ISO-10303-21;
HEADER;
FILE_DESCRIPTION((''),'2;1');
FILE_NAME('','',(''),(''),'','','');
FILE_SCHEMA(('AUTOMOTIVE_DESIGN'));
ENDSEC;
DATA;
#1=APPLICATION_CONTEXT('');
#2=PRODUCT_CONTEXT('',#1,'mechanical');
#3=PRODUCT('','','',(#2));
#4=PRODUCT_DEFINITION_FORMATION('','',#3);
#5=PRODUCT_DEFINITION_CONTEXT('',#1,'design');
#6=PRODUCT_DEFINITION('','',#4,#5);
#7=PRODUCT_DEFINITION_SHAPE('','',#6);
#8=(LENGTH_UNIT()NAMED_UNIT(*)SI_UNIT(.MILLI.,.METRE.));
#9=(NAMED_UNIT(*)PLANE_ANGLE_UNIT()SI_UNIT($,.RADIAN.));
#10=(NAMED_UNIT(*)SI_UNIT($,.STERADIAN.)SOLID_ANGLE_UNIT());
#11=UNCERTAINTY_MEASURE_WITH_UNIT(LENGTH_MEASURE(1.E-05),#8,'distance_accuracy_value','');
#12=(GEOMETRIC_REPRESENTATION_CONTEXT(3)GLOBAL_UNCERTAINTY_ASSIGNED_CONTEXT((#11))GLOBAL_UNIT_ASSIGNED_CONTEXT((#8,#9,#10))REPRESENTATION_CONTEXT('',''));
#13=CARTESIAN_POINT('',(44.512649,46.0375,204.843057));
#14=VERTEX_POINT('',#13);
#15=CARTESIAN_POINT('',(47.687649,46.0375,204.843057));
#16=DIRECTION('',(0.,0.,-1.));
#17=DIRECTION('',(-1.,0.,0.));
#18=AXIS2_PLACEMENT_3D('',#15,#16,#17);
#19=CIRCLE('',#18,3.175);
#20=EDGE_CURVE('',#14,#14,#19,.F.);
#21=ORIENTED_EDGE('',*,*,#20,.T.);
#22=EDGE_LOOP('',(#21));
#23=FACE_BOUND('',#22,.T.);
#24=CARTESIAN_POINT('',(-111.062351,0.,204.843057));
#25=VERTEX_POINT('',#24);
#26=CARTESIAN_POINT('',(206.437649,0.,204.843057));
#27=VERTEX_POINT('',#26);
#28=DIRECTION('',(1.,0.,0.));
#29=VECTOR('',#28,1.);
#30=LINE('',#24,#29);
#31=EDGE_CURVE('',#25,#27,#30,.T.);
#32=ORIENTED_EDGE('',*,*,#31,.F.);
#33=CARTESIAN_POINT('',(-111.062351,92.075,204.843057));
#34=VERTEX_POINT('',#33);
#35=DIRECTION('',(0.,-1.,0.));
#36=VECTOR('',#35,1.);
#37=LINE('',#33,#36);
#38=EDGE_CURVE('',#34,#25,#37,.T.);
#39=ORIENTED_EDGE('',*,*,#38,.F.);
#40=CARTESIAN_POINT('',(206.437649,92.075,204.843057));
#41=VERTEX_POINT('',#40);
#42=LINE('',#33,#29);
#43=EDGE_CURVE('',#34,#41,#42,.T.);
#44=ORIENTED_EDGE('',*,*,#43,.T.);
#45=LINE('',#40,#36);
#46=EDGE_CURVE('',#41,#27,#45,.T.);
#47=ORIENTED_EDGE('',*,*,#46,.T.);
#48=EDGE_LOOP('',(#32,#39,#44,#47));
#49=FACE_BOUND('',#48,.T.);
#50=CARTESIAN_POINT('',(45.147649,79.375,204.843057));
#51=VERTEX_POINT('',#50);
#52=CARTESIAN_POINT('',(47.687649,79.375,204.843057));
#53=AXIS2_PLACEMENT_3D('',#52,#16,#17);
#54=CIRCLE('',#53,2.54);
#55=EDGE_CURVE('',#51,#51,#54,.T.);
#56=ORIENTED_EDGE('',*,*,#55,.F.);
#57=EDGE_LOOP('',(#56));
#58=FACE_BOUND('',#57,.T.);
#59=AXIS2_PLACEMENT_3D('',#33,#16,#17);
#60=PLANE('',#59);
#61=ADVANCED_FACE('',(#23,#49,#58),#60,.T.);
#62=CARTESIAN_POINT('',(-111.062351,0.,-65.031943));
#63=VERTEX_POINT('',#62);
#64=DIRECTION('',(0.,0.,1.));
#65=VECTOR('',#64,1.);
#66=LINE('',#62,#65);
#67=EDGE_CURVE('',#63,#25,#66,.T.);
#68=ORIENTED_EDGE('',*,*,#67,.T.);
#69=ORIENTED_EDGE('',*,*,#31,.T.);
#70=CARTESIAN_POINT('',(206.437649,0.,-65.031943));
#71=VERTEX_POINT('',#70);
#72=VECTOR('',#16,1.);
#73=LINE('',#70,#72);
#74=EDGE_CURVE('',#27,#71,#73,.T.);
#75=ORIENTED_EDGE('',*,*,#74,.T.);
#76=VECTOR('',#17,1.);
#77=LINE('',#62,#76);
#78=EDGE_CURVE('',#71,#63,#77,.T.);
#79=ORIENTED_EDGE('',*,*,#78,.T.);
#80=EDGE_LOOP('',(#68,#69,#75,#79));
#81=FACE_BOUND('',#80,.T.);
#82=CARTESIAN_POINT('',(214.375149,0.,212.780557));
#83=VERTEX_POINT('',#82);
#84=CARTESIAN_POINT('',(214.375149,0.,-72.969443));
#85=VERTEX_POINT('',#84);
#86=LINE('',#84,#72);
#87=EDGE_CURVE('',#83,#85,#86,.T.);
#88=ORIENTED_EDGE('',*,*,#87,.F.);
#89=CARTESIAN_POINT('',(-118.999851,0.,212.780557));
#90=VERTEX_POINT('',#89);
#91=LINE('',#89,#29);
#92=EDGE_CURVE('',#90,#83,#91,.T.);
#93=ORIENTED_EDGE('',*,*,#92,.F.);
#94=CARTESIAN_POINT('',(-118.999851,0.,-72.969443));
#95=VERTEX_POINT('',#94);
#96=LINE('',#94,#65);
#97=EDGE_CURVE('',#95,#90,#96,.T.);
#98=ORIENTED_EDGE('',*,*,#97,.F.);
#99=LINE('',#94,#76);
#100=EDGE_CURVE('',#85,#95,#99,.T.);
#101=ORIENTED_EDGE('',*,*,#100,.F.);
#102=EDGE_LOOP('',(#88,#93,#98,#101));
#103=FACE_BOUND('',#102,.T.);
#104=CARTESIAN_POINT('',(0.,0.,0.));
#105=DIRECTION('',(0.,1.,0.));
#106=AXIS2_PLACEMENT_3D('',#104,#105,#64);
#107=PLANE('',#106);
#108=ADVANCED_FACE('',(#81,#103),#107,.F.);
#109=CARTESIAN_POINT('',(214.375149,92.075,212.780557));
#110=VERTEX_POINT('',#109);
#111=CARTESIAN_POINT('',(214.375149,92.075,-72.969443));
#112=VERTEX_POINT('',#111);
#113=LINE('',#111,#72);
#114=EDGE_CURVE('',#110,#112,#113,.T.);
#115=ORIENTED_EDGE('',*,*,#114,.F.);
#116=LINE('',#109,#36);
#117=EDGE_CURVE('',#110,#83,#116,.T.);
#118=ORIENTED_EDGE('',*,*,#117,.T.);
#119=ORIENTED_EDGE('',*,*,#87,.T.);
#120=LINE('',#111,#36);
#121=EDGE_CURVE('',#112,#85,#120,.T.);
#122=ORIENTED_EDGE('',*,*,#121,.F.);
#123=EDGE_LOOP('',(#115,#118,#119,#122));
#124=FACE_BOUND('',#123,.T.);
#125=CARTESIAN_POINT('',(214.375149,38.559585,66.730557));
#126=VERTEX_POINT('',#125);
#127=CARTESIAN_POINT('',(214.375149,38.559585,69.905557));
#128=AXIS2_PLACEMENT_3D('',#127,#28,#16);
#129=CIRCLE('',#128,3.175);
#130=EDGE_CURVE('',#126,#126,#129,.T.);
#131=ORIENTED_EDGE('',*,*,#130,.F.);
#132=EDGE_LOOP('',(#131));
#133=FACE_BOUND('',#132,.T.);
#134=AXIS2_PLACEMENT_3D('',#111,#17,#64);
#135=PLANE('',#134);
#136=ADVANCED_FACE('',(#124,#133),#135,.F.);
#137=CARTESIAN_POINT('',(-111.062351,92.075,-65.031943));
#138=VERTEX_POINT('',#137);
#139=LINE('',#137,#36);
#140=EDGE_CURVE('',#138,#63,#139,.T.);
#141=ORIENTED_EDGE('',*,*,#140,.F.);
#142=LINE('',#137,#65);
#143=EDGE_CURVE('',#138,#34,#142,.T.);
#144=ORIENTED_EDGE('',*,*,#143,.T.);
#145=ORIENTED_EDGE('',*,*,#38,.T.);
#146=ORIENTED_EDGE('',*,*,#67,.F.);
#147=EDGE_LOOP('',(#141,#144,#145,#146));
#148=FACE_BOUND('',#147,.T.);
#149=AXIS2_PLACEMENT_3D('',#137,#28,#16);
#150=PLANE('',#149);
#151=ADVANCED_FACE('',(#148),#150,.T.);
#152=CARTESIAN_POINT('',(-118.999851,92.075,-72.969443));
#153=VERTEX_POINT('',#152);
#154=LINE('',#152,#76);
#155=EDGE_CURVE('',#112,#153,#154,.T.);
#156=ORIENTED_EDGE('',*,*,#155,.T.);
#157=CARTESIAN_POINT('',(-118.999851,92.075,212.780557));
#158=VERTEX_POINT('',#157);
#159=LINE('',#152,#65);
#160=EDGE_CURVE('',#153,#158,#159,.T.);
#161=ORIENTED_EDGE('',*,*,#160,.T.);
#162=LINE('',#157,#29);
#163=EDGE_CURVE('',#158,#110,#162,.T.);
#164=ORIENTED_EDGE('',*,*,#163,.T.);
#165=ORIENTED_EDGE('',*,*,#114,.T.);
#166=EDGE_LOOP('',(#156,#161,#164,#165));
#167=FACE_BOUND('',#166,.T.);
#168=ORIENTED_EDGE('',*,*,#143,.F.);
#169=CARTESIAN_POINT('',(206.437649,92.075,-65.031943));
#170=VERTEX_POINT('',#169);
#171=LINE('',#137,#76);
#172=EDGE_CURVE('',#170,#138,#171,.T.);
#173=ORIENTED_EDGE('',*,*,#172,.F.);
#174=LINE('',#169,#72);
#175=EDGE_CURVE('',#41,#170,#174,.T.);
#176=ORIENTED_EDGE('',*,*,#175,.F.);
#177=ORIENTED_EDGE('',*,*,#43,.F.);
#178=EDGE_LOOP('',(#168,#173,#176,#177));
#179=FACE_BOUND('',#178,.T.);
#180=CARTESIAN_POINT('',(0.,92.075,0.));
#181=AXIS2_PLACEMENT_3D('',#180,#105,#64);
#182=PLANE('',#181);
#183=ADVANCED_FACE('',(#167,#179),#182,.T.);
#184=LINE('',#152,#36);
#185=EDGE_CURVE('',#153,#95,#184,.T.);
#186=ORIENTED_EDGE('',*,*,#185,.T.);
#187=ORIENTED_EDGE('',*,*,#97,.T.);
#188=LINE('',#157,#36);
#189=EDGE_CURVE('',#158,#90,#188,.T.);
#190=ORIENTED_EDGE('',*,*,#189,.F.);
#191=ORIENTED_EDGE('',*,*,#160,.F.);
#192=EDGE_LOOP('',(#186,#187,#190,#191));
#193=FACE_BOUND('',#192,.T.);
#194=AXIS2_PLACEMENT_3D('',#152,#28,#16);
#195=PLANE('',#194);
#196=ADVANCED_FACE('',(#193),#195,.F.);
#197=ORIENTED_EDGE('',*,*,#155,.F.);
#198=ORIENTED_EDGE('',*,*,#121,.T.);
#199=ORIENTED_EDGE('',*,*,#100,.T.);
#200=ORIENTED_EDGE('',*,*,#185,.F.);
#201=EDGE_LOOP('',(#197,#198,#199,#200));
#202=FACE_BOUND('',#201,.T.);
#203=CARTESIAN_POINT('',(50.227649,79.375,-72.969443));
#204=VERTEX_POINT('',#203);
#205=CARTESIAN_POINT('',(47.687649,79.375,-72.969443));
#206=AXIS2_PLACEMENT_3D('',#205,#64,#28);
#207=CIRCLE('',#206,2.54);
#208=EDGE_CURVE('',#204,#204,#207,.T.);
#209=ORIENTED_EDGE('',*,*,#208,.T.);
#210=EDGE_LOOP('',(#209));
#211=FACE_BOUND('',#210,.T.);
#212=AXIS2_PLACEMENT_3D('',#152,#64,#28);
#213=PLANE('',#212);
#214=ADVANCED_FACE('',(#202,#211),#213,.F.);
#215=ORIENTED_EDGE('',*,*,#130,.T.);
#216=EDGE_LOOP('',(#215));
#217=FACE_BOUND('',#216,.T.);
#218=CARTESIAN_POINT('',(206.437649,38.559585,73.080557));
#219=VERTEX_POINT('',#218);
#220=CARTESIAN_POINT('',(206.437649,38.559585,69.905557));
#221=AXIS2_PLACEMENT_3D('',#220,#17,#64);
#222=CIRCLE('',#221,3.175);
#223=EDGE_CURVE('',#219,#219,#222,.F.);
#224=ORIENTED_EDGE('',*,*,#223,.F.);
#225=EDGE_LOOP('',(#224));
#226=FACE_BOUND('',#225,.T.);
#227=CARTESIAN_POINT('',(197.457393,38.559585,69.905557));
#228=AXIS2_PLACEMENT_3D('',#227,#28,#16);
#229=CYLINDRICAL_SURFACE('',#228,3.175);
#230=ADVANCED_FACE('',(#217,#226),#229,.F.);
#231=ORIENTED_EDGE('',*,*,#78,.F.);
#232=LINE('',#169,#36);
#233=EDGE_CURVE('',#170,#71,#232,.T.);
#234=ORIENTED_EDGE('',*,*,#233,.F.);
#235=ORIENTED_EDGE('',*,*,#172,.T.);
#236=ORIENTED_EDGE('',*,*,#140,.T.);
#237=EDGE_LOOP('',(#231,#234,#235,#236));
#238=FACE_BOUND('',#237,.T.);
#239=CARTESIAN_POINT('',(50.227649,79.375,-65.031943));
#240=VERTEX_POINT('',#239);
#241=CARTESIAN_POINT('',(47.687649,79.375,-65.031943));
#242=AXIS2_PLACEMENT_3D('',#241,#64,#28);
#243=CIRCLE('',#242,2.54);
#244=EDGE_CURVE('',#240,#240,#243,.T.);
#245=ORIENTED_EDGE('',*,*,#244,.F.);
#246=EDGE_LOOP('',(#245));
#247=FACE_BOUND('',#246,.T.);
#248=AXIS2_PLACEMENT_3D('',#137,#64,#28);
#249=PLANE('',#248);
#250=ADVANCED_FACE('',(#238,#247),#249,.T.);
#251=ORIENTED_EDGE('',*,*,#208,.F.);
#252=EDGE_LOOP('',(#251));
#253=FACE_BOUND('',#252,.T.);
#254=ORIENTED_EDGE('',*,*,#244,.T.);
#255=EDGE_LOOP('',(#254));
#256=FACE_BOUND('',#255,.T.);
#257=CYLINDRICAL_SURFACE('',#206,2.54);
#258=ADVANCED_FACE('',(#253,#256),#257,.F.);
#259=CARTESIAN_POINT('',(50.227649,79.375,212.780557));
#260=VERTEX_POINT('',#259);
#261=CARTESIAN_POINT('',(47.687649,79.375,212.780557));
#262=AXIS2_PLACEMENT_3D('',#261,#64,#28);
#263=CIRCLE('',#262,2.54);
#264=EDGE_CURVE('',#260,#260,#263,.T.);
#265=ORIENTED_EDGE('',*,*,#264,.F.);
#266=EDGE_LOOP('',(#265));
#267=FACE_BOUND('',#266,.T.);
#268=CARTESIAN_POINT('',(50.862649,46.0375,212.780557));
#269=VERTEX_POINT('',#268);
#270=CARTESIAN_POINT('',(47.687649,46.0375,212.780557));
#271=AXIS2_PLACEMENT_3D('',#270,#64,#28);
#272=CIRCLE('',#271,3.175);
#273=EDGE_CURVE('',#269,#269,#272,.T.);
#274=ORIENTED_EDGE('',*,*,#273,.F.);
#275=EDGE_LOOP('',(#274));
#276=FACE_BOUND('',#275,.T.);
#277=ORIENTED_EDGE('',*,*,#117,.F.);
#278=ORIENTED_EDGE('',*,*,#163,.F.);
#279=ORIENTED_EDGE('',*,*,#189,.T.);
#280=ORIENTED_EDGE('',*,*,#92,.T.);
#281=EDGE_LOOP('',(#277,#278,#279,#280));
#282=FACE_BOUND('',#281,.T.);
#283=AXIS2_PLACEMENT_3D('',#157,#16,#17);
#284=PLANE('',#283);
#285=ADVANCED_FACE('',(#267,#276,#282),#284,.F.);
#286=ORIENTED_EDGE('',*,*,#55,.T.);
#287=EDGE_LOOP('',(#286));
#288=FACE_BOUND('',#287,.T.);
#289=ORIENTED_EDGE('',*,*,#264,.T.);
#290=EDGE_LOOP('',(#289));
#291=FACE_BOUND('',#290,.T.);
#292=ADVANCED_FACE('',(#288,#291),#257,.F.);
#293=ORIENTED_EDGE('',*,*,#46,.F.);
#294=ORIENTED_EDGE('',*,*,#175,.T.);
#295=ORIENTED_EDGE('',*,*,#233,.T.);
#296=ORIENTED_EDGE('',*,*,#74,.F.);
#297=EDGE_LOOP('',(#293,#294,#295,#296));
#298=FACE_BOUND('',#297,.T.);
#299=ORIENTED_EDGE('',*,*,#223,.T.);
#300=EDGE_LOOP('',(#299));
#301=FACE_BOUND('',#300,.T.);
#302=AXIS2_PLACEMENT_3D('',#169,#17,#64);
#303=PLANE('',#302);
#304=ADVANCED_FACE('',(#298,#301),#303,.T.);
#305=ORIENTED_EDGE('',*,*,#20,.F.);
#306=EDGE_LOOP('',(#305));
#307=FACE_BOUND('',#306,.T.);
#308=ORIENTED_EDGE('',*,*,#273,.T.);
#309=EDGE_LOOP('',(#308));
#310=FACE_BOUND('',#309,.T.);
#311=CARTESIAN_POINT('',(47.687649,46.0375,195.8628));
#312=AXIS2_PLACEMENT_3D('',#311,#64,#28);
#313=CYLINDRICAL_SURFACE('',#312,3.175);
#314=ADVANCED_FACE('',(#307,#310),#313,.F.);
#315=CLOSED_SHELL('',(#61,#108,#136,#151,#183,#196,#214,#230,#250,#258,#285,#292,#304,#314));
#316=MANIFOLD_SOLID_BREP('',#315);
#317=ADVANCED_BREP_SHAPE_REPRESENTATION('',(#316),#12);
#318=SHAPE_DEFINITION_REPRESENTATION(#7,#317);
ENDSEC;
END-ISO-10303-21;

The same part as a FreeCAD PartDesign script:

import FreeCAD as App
import Part
import Sketcher

V = App.Vector
Q = App.Units.Quantity


def add_polygon(sketch, points):
    """Adds a closed chain of lines whose ends are joined by coincident constraints."""
    first, n = sketch.GeometryCount, len(points)
    for a, b in zip(points, points[1:] + points[:1]):
        sketch.addGeometry(Part.LineSegment(App.Vector(*a, 0), App.Vector(*b, 0)), False)
    for i in range(n):
        sketch.addConstraint(Sketcher.Constraint("Coincident", first + i, 2, first + (i + 1) % n, 1))

doc = App.newDocument("Part")
body = doc.addObject("PartDesign::Body", "Body")

# Sketch on XZ plane
sketch1 = body.newObject("Sketcher::SketchObject", "Sketch")
sketch1.AttachmentSupport = (doc.getObject("XZ_Plane"), [""])
sketch1.MapMode = "FlatFace"
add_polygon(sketch1, [(-119, -73), (-119, 213), (214, 213), (214, -73)])  # lines 0-3
add_polygon(sketch1, [(206, 205), (-111, 205), (-111, -65), (206, -65)])  # lines 4-7
sketch1.addConstraint([
    Sketcher.Constraint("Vertical", 0),
    Sketcher.Constraint("Horizontal", 1),
    Sketcher.Constraint("Vertical", 2),
    Sketcher.Constraint("Horizontal", 3),
    Sketcher.Constraint("Horizontal", 4),
    Sketcher.Constraint("Vertical", 5),
    Sketcher.Constraint("Horizontal", 6),
    Sketcher.Constraint("Vertical", 7),
    Sketcher.Constraint("DistanceX", 4, 2, 4, 1, Q("12.5 in")),
    Sketcher.Constraint("DistanceY", 0, 1, 0, 2, Q("11.25 in")),
    Sketcher.Constraint("DistanceX", 1, 1, 1, 2, Q("13.125 in")),
    Sketcher.Constraint("DistanceY", 5, 2, 5, 1, Q("10.625 in")),
    Sketcher.Constraint("DistanceX", 0, 2, 4, 2, Q("0.3125 in")),
    Sketcher.Constraint("DistanceY", 4, 2, 0, 2, Q("0.3125 in")),
    Sketcher.Constraint("DistanceX", 0, 2, -1, 1, Q("118.999851 mm")),
    Sketcher.Constraint("DistanceY", -1, 1, 0, 2, Q("212.780557 mm")),
])
pad1 = body.newObject("PartDesign::Pad", "Pad")
pad1.Profile = sketch1
pad1.Length = Q("3.625 in")
pad1.Reversed = True

# Sketch on XY plane
sketch2 = body.newObject("Sketcher::SketchObject", "Sketch001")
sketch2.AttachmentSupport = (doc.getObject("XY_Plane"), [""])
sketch2.MapMode = "FlatFace"
sketch2.AttachmentOffset = App.Placement(V(0, 0, 212.780557), App.Rotation())
sketch2.addGeometry(Part.Circle(V(47.7, 79.4, 0), V(0, 0, 1), 2.5), False)
sketch2.addConstraint([
    Sketcher.Constraint("Diameter", 0, Q("0.2 in")),
    Sketcher.Constraint("DistanceY", -1, 1, 0, 3, Q("3.125 in")),
    Sketcher.Constraint("DistanceX", -1, 1, 0, 3, Q("47.687649 mm")),
])
pocket1 = body.newObject("PartDesign::Pocket", "Pocket")
pocket1.Profile = sketch2
pocket1.Type = "ThroughAll"

# Sketch on XY plane
sketch3 = body.newObject("Sketcher::SketchObject", "Sketch002")
sketch3.AttachmentSupport = (doc.getObject("XY_Plane"), [""])
sketch3.MapMode = "FlatFace"
sketch3.AttachmentOffset = App.Placement(V(0, 0, 212.780557), App.Rotation())
sketch3.addGeometry(Part.Circle(V(47.7, 46, 0), V(0, 0, 1), 3.2), False)
sketch3.addConstraint([
    Sketcher.Constraint("Diameter", 0, Q("0.25 in")),
    Sketcher.Constraint("DistanceY", -1, 1, 0, 3, Q("1.8125 in")),
    Sketcher.Constraint("DistanceX", -1, 1, 0, 3, Q("47.687649 mm")),
])
pocket2 = body.newObject("PartDesign::Pocket", "Pocket001")
pocket2.Profile = sketch3
pocket2.Length = Q("0.3125 in")

# Sketch on YZ plane
sketch4 = body.newObject("Sketcher::SketchObject", "Sketch003")
sketch4.AttachmentSupport = (doc.getObject("YZ_Plane"), [""])
sketch4.MapMode = "FlatFace"
sketch4.AttachmentOffset = App.Placement(V(0, 0, 214.375149), App.Rotation())
sketch4.addGeometry(Part.Circle(V(38.6, 69.9, 0), V(0, 0, 1), 3.2), False)
sketch4.addConstraint([
    Sketcher.Constraint("Diameter", 0, Q("0.25 in")),
    Sketcher.Constraint("DistanceX", -1, 1, 0, 3, Q("38.559585 mm")),
    Sketcher.Constraint("DistanceY", -1, 1, 0, 3, Q("69.905557 mm")),
])
pocket3 = body.newObject("PartDesign::Pocket", "Pocket002")
pocket3.Profile = sketch4
pocket3.Length = Q("0.3125 in")

doc.recompute()
